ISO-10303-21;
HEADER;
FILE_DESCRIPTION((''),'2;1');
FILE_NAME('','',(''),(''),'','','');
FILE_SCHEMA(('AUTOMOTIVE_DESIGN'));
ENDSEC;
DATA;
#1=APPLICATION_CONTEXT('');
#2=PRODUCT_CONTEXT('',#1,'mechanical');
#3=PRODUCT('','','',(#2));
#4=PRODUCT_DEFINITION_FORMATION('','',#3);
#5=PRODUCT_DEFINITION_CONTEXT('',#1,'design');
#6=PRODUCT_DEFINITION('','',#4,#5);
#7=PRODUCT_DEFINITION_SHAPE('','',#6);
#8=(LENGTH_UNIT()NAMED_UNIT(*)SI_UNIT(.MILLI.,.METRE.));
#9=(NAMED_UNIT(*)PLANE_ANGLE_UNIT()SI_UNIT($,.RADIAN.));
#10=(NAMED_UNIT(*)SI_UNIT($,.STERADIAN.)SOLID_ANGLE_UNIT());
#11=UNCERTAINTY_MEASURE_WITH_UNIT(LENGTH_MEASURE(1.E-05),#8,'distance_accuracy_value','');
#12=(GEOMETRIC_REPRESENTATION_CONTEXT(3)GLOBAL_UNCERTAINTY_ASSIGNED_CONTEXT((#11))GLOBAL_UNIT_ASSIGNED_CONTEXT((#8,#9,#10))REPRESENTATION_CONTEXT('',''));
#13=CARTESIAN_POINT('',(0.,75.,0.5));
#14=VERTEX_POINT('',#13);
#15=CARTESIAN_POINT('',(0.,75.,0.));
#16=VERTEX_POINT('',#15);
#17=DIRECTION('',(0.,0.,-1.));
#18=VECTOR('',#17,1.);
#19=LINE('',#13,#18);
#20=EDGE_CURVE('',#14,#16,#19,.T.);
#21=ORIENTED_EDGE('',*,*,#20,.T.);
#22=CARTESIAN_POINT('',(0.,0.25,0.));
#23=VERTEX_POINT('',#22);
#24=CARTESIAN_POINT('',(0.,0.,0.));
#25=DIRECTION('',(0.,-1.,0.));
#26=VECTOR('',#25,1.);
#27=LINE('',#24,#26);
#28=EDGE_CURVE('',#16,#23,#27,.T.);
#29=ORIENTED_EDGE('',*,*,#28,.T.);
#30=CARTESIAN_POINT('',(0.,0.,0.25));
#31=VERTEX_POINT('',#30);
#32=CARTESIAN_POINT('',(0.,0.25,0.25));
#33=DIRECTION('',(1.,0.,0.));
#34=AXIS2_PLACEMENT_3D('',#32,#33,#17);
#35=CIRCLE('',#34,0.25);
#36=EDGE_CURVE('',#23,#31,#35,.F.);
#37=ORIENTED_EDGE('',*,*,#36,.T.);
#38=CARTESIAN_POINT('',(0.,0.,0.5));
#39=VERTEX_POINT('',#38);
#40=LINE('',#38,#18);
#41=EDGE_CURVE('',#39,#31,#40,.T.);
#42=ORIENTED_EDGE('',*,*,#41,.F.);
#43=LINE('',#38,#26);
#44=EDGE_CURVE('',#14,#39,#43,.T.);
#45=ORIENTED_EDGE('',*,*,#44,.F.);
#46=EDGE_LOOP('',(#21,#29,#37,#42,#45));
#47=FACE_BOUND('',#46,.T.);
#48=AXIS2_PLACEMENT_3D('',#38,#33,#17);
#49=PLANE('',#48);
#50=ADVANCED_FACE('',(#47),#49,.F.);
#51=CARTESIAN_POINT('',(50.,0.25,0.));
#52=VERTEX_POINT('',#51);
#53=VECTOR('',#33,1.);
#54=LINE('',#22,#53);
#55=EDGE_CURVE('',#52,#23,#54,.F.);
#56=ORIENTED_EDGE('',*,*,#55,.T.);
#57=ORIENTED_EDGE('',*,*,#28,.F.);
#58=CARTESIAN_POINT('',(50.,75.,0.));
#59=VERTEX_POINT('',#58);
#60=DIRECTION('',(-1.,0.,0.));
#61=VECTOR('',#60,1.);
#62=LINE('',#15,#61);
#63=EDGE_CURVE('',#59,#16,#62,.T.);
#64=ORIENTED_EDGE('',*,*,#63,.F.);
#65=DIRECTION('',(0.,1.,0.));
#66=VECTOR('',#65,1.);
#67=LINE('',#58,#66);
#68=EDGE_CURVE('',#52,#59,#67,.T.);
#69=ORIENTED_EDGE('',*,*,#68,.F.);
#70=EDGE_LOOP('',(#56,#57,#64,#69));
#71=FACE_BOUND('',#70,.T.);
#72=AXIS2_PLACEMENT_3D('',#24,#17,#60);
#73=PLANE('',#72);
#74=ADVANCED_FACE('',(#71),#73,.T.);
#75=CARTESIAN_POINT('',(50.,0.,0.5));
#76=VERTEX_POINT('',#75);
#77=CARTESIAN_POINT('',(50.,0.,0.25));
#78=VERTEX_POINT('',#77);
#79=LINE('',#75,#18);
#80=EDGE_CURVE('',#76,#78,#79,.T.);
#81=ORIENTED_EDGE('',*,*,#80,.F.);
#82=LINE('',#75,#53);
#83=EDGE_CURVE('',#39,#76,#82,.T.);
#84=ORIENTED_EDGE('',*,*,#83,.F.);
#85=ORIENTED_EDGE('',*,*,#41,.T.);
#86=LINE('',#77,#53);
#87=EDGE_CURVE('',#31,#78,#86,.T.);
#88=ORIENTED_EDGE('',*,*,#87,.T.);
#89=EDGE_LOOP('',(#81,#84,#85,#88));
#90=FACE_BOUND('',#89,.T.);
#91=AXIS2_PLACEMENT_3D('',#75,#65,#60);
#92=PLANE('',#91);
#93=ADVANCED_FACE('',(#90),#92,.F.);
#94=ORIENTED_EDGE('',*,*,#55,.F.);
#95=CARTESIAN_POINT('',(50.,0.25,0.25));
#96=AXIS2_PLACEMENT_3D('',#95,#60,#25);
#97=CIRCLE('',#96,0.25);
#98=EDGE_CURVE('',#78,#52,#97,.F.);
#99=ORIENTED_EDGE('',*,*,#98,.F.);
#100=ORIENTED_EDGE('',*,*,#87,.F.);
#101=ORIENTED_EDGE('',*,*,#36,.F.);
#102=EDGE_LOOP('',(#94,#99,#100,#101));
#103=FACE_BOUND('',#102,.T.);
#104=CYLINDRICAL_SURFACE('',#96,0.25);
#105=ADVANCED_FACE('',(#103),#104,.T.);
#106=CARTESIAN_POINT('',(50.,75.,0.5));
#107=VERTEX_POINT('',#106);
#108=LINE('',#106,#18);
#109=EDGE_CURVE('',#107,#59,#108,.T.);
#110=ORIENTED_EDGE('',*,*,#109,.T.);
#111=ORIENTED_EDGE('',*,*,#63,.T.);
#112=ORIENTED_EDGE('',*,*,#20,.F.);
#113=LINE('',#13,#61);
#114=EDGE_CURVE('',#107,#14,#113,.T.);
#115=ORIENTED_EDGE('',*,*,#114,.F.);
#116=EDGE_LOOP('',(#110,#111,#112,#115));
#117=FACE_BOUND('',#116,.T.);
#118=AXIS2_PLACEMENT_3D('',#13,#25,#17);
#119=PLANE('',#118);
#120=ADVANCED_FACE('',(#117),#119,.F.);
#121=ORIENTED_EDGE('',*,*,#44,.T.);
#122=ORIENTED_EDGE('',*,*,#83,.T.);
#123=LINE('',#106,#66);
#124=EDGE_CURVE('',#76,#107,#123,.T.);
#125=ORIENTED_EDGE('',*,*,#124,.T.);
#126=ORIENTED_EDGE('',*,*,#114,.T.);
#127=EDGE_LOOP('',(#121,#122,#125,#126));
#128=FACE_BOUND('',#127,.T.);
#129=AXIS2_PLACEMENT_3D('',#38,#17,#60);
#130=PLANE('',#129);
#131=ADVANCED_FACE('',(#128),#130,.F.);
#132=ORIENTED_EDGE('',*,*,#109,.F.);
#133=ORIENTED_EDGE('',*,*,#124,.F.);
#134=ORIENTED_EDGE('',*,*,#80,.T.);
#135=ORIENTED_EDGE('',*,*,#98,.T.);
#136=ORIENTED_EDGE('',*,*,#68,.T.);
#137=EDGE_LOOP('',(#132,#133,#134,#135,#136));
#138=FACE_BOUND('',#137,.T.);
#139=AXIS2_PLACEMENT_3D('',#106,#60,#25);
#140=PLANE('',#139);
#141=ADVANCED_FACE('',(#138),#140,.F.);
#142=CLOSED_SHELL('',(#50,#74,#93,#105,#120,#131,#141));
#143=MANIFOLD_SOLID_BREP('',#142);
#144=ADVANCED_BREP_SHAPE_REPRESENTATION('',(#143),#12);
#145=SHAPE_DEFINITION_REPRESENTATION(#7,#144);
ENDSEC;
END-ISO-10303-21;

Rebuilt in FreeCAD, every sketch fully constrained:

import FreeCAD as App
import Part
import Sketcher

V = App.Vector


def edges_at(feature, points):
    """Names of the edges that pass closest to the given points."""
    edges = feature.Shape.Edges
    near = lambda p: min(range(len(edges)), key=lambda i: edges[i].distToShape(Part.Vertex(*p))[0])
    return sorted({f"Edge{near(p) + 1}" for p in points})


def add_polygon(sketch, points):
    """Adds a closed chain of lines whose ends are joined by coincident constraints."""
    first, n = sketch.GeometryCount, len(points)
    for a, b in zip(points, points[1:] + points[:1]):
        sketch.addGeometry(Part.LineSegment(App.Vector(*a, 0), App.Vector(*b, 0)), False)
    for i in range(n):
        sketch.addConstraint(Sketcher.Constraint("Coincident", first + i, 2, first + (i + 1) % n, 1))

doc = App.newDocument("Part")
body = doc.addObject("PartDesign::Body", "Body")

# Sketch on XY plane
sketch1 = body.newObject("Sketcher::SketchObject", "Sketch")
sketch1.AttachmentSupport = (doc.getObject("XY_Plane"), [""])
sketch1.MapMode = "FlatFace"
add_polygon(sketch1, [(0, 75), (0, 0), (50, 0), (50, 75)])  # lines 0-3
sketch1.addConstraint([
    Sketcher.Constraint("Vertical", 0),
    Sketcher.Constraint("Horizontal", 1),
    Sketcher.Constraint("Vertical", 2),
    Sketcher.Constraint("Horizontal", 3),
    Sketcher.Constraint("Coincident", 0, 2, -1, 1),
    Sketcher.Constraint("DistanceX", 1, 1, 1, 2, 50.0),
    Sketcher.Constraint("DistanceY", 0, 2, 0, 1, 75.0),
])
pad1 = body.newObject("PartDesign::Pad", "Pad")
pad1.Profile = sketch1
pad1.Length = 0.5
doc.recompute()

fillet = body.newObject("PartDesign::Fillet", "Fillet")
fillet.Base = (pad1, edges_at(pad1, [(25, 0, 0)]))
fillet.Radius = 0.25

doc.recompute()
